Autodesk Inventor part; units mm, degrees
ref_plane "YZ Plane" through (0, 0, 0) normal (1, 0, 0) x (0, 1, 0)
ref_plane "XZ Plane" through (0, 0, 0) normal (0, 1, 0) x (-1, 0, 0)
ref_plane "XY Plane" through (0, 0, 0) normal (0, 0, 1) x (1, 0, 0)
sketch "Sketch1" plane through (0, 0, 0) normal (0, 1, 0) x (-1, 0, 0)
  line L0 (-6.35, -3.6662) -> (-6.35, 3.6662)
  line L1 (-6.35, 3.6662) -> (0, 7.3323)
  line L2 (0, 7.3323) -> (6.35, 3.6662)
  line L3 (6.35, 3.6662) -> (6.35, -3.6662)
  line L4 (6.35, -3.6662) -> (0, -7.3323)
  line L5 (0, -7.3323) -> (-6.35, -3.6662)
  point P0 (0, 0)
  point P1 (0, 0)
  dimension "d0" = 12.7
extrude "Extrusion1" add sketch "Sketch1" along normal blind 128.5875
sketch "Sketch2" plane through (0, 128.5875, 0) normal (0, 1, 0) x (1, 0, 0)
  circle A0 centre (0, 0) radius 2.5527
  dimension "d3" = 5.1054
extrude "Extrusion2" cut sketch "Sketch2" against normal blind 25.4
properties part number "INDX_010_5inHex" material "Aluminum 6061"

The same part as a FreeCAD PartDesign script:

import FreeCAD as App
import Part
import Sketcher
Q = App.Units.Quantity


def add_polygon(sketch, points):
    """Adds a closed chain of lines whose ends are joined by coincident constraints."""
    first, n = sketch.GeometryCount, len(points)
    for a, b in zip(points, points[1:] + points[:1]):
        sketch.addGeometry(Part.LineSegment(App.Vector(*a, 0), App.Vector(*b, 0)), False)
    for i in range(n):
        sketch.addConstraint(Sketcher.Constraint("Coincident", first + i, 2, first + (i + 1) % n, 1))

doc = App.newDocument("Part")
body = doc.addObject("PartDesign::Body", "Body")

# Sketch on XZ plane
sketch1 = doc.addObject("Sketcher::SketchObject", "Sketch")
body.addObject(sketch1)
sketch1.AttachmentSupport = (doc.XZ_Plane, [""])
sketch1.MapMode = "FlatFace"
add_polygon(sketch1, [(6, 4), (6, -4), (0, -7), (-6, -4), (-6, 4), (0, 7)])  # lines 0-5
sketch1.addConstraint([
    Sketcher.Constraint("Vertical", 0),
    Sketcher.Constraint("Vertical", 3),
    Sketcher.Constraint("Symmetric", 0, 2, 3, 2, -1, 1),
    Sketcher.Constraint("Symmetric", 1, 2, 4, 2, -1, 1),
    Sketcher.Constraint("PointOnObject", 1, 2, -2),
    Sketcher.Constraint("Parallel", 2, 5),
    Sketcher.Constraint("Horizontal", 0, 2, 2, 2),
    Sketcher.Constraint("DistanceX", 2, 2, 0, 2, Q("0.5 in")),
    Sketcher.Constraint("Angle", 1, Q("-150.0005 deg")),
    Sketcher.Constraint("DistanceY", 1, 2, 3, 2, Q("0.433 in")),
])
pad1 = doc.addObject("PartDesign::Pad", "Pad")
body.addObject(pad1)
pad1.Profile = sketch1
pad1.Length = Q("5.0625 in")
pad1.Reversed = True

# Sketch on XZ plane
sketch2 = doc.addObject("Sketcher::SketchObject", "Sketch001")
body.addObject(sketch2)
sketch2.AttachmentSupport = (doc.XZ_Plane, [""])
sketch2.MapMode = "FlatFace"
sketch2.AttachmentOffset = App.Placement(App.Vector(0, 0, -5.0625 * 25.4), App.Rotation())
sketch2.addGeometry(Part.Circle(App.Vector(0, 0, 0), App.Vector(0, 0, 1), 2.6), False)
sketch2.addConstraint([
    Sketcher.Constraint("Coincident", 0, 3, -1, 1),
    Sketcher.Constraint("Diameter", 0, Q("0.201 in")),
])
pocket1 = doc.addObject("PartDesign::Pocket", "Pocket")
body.addObject(pocket1)
pocket1.Profile = sketch2
pocket1.Length = Q("1 in")
pocket1.Reversed = True

doc.recompute()
